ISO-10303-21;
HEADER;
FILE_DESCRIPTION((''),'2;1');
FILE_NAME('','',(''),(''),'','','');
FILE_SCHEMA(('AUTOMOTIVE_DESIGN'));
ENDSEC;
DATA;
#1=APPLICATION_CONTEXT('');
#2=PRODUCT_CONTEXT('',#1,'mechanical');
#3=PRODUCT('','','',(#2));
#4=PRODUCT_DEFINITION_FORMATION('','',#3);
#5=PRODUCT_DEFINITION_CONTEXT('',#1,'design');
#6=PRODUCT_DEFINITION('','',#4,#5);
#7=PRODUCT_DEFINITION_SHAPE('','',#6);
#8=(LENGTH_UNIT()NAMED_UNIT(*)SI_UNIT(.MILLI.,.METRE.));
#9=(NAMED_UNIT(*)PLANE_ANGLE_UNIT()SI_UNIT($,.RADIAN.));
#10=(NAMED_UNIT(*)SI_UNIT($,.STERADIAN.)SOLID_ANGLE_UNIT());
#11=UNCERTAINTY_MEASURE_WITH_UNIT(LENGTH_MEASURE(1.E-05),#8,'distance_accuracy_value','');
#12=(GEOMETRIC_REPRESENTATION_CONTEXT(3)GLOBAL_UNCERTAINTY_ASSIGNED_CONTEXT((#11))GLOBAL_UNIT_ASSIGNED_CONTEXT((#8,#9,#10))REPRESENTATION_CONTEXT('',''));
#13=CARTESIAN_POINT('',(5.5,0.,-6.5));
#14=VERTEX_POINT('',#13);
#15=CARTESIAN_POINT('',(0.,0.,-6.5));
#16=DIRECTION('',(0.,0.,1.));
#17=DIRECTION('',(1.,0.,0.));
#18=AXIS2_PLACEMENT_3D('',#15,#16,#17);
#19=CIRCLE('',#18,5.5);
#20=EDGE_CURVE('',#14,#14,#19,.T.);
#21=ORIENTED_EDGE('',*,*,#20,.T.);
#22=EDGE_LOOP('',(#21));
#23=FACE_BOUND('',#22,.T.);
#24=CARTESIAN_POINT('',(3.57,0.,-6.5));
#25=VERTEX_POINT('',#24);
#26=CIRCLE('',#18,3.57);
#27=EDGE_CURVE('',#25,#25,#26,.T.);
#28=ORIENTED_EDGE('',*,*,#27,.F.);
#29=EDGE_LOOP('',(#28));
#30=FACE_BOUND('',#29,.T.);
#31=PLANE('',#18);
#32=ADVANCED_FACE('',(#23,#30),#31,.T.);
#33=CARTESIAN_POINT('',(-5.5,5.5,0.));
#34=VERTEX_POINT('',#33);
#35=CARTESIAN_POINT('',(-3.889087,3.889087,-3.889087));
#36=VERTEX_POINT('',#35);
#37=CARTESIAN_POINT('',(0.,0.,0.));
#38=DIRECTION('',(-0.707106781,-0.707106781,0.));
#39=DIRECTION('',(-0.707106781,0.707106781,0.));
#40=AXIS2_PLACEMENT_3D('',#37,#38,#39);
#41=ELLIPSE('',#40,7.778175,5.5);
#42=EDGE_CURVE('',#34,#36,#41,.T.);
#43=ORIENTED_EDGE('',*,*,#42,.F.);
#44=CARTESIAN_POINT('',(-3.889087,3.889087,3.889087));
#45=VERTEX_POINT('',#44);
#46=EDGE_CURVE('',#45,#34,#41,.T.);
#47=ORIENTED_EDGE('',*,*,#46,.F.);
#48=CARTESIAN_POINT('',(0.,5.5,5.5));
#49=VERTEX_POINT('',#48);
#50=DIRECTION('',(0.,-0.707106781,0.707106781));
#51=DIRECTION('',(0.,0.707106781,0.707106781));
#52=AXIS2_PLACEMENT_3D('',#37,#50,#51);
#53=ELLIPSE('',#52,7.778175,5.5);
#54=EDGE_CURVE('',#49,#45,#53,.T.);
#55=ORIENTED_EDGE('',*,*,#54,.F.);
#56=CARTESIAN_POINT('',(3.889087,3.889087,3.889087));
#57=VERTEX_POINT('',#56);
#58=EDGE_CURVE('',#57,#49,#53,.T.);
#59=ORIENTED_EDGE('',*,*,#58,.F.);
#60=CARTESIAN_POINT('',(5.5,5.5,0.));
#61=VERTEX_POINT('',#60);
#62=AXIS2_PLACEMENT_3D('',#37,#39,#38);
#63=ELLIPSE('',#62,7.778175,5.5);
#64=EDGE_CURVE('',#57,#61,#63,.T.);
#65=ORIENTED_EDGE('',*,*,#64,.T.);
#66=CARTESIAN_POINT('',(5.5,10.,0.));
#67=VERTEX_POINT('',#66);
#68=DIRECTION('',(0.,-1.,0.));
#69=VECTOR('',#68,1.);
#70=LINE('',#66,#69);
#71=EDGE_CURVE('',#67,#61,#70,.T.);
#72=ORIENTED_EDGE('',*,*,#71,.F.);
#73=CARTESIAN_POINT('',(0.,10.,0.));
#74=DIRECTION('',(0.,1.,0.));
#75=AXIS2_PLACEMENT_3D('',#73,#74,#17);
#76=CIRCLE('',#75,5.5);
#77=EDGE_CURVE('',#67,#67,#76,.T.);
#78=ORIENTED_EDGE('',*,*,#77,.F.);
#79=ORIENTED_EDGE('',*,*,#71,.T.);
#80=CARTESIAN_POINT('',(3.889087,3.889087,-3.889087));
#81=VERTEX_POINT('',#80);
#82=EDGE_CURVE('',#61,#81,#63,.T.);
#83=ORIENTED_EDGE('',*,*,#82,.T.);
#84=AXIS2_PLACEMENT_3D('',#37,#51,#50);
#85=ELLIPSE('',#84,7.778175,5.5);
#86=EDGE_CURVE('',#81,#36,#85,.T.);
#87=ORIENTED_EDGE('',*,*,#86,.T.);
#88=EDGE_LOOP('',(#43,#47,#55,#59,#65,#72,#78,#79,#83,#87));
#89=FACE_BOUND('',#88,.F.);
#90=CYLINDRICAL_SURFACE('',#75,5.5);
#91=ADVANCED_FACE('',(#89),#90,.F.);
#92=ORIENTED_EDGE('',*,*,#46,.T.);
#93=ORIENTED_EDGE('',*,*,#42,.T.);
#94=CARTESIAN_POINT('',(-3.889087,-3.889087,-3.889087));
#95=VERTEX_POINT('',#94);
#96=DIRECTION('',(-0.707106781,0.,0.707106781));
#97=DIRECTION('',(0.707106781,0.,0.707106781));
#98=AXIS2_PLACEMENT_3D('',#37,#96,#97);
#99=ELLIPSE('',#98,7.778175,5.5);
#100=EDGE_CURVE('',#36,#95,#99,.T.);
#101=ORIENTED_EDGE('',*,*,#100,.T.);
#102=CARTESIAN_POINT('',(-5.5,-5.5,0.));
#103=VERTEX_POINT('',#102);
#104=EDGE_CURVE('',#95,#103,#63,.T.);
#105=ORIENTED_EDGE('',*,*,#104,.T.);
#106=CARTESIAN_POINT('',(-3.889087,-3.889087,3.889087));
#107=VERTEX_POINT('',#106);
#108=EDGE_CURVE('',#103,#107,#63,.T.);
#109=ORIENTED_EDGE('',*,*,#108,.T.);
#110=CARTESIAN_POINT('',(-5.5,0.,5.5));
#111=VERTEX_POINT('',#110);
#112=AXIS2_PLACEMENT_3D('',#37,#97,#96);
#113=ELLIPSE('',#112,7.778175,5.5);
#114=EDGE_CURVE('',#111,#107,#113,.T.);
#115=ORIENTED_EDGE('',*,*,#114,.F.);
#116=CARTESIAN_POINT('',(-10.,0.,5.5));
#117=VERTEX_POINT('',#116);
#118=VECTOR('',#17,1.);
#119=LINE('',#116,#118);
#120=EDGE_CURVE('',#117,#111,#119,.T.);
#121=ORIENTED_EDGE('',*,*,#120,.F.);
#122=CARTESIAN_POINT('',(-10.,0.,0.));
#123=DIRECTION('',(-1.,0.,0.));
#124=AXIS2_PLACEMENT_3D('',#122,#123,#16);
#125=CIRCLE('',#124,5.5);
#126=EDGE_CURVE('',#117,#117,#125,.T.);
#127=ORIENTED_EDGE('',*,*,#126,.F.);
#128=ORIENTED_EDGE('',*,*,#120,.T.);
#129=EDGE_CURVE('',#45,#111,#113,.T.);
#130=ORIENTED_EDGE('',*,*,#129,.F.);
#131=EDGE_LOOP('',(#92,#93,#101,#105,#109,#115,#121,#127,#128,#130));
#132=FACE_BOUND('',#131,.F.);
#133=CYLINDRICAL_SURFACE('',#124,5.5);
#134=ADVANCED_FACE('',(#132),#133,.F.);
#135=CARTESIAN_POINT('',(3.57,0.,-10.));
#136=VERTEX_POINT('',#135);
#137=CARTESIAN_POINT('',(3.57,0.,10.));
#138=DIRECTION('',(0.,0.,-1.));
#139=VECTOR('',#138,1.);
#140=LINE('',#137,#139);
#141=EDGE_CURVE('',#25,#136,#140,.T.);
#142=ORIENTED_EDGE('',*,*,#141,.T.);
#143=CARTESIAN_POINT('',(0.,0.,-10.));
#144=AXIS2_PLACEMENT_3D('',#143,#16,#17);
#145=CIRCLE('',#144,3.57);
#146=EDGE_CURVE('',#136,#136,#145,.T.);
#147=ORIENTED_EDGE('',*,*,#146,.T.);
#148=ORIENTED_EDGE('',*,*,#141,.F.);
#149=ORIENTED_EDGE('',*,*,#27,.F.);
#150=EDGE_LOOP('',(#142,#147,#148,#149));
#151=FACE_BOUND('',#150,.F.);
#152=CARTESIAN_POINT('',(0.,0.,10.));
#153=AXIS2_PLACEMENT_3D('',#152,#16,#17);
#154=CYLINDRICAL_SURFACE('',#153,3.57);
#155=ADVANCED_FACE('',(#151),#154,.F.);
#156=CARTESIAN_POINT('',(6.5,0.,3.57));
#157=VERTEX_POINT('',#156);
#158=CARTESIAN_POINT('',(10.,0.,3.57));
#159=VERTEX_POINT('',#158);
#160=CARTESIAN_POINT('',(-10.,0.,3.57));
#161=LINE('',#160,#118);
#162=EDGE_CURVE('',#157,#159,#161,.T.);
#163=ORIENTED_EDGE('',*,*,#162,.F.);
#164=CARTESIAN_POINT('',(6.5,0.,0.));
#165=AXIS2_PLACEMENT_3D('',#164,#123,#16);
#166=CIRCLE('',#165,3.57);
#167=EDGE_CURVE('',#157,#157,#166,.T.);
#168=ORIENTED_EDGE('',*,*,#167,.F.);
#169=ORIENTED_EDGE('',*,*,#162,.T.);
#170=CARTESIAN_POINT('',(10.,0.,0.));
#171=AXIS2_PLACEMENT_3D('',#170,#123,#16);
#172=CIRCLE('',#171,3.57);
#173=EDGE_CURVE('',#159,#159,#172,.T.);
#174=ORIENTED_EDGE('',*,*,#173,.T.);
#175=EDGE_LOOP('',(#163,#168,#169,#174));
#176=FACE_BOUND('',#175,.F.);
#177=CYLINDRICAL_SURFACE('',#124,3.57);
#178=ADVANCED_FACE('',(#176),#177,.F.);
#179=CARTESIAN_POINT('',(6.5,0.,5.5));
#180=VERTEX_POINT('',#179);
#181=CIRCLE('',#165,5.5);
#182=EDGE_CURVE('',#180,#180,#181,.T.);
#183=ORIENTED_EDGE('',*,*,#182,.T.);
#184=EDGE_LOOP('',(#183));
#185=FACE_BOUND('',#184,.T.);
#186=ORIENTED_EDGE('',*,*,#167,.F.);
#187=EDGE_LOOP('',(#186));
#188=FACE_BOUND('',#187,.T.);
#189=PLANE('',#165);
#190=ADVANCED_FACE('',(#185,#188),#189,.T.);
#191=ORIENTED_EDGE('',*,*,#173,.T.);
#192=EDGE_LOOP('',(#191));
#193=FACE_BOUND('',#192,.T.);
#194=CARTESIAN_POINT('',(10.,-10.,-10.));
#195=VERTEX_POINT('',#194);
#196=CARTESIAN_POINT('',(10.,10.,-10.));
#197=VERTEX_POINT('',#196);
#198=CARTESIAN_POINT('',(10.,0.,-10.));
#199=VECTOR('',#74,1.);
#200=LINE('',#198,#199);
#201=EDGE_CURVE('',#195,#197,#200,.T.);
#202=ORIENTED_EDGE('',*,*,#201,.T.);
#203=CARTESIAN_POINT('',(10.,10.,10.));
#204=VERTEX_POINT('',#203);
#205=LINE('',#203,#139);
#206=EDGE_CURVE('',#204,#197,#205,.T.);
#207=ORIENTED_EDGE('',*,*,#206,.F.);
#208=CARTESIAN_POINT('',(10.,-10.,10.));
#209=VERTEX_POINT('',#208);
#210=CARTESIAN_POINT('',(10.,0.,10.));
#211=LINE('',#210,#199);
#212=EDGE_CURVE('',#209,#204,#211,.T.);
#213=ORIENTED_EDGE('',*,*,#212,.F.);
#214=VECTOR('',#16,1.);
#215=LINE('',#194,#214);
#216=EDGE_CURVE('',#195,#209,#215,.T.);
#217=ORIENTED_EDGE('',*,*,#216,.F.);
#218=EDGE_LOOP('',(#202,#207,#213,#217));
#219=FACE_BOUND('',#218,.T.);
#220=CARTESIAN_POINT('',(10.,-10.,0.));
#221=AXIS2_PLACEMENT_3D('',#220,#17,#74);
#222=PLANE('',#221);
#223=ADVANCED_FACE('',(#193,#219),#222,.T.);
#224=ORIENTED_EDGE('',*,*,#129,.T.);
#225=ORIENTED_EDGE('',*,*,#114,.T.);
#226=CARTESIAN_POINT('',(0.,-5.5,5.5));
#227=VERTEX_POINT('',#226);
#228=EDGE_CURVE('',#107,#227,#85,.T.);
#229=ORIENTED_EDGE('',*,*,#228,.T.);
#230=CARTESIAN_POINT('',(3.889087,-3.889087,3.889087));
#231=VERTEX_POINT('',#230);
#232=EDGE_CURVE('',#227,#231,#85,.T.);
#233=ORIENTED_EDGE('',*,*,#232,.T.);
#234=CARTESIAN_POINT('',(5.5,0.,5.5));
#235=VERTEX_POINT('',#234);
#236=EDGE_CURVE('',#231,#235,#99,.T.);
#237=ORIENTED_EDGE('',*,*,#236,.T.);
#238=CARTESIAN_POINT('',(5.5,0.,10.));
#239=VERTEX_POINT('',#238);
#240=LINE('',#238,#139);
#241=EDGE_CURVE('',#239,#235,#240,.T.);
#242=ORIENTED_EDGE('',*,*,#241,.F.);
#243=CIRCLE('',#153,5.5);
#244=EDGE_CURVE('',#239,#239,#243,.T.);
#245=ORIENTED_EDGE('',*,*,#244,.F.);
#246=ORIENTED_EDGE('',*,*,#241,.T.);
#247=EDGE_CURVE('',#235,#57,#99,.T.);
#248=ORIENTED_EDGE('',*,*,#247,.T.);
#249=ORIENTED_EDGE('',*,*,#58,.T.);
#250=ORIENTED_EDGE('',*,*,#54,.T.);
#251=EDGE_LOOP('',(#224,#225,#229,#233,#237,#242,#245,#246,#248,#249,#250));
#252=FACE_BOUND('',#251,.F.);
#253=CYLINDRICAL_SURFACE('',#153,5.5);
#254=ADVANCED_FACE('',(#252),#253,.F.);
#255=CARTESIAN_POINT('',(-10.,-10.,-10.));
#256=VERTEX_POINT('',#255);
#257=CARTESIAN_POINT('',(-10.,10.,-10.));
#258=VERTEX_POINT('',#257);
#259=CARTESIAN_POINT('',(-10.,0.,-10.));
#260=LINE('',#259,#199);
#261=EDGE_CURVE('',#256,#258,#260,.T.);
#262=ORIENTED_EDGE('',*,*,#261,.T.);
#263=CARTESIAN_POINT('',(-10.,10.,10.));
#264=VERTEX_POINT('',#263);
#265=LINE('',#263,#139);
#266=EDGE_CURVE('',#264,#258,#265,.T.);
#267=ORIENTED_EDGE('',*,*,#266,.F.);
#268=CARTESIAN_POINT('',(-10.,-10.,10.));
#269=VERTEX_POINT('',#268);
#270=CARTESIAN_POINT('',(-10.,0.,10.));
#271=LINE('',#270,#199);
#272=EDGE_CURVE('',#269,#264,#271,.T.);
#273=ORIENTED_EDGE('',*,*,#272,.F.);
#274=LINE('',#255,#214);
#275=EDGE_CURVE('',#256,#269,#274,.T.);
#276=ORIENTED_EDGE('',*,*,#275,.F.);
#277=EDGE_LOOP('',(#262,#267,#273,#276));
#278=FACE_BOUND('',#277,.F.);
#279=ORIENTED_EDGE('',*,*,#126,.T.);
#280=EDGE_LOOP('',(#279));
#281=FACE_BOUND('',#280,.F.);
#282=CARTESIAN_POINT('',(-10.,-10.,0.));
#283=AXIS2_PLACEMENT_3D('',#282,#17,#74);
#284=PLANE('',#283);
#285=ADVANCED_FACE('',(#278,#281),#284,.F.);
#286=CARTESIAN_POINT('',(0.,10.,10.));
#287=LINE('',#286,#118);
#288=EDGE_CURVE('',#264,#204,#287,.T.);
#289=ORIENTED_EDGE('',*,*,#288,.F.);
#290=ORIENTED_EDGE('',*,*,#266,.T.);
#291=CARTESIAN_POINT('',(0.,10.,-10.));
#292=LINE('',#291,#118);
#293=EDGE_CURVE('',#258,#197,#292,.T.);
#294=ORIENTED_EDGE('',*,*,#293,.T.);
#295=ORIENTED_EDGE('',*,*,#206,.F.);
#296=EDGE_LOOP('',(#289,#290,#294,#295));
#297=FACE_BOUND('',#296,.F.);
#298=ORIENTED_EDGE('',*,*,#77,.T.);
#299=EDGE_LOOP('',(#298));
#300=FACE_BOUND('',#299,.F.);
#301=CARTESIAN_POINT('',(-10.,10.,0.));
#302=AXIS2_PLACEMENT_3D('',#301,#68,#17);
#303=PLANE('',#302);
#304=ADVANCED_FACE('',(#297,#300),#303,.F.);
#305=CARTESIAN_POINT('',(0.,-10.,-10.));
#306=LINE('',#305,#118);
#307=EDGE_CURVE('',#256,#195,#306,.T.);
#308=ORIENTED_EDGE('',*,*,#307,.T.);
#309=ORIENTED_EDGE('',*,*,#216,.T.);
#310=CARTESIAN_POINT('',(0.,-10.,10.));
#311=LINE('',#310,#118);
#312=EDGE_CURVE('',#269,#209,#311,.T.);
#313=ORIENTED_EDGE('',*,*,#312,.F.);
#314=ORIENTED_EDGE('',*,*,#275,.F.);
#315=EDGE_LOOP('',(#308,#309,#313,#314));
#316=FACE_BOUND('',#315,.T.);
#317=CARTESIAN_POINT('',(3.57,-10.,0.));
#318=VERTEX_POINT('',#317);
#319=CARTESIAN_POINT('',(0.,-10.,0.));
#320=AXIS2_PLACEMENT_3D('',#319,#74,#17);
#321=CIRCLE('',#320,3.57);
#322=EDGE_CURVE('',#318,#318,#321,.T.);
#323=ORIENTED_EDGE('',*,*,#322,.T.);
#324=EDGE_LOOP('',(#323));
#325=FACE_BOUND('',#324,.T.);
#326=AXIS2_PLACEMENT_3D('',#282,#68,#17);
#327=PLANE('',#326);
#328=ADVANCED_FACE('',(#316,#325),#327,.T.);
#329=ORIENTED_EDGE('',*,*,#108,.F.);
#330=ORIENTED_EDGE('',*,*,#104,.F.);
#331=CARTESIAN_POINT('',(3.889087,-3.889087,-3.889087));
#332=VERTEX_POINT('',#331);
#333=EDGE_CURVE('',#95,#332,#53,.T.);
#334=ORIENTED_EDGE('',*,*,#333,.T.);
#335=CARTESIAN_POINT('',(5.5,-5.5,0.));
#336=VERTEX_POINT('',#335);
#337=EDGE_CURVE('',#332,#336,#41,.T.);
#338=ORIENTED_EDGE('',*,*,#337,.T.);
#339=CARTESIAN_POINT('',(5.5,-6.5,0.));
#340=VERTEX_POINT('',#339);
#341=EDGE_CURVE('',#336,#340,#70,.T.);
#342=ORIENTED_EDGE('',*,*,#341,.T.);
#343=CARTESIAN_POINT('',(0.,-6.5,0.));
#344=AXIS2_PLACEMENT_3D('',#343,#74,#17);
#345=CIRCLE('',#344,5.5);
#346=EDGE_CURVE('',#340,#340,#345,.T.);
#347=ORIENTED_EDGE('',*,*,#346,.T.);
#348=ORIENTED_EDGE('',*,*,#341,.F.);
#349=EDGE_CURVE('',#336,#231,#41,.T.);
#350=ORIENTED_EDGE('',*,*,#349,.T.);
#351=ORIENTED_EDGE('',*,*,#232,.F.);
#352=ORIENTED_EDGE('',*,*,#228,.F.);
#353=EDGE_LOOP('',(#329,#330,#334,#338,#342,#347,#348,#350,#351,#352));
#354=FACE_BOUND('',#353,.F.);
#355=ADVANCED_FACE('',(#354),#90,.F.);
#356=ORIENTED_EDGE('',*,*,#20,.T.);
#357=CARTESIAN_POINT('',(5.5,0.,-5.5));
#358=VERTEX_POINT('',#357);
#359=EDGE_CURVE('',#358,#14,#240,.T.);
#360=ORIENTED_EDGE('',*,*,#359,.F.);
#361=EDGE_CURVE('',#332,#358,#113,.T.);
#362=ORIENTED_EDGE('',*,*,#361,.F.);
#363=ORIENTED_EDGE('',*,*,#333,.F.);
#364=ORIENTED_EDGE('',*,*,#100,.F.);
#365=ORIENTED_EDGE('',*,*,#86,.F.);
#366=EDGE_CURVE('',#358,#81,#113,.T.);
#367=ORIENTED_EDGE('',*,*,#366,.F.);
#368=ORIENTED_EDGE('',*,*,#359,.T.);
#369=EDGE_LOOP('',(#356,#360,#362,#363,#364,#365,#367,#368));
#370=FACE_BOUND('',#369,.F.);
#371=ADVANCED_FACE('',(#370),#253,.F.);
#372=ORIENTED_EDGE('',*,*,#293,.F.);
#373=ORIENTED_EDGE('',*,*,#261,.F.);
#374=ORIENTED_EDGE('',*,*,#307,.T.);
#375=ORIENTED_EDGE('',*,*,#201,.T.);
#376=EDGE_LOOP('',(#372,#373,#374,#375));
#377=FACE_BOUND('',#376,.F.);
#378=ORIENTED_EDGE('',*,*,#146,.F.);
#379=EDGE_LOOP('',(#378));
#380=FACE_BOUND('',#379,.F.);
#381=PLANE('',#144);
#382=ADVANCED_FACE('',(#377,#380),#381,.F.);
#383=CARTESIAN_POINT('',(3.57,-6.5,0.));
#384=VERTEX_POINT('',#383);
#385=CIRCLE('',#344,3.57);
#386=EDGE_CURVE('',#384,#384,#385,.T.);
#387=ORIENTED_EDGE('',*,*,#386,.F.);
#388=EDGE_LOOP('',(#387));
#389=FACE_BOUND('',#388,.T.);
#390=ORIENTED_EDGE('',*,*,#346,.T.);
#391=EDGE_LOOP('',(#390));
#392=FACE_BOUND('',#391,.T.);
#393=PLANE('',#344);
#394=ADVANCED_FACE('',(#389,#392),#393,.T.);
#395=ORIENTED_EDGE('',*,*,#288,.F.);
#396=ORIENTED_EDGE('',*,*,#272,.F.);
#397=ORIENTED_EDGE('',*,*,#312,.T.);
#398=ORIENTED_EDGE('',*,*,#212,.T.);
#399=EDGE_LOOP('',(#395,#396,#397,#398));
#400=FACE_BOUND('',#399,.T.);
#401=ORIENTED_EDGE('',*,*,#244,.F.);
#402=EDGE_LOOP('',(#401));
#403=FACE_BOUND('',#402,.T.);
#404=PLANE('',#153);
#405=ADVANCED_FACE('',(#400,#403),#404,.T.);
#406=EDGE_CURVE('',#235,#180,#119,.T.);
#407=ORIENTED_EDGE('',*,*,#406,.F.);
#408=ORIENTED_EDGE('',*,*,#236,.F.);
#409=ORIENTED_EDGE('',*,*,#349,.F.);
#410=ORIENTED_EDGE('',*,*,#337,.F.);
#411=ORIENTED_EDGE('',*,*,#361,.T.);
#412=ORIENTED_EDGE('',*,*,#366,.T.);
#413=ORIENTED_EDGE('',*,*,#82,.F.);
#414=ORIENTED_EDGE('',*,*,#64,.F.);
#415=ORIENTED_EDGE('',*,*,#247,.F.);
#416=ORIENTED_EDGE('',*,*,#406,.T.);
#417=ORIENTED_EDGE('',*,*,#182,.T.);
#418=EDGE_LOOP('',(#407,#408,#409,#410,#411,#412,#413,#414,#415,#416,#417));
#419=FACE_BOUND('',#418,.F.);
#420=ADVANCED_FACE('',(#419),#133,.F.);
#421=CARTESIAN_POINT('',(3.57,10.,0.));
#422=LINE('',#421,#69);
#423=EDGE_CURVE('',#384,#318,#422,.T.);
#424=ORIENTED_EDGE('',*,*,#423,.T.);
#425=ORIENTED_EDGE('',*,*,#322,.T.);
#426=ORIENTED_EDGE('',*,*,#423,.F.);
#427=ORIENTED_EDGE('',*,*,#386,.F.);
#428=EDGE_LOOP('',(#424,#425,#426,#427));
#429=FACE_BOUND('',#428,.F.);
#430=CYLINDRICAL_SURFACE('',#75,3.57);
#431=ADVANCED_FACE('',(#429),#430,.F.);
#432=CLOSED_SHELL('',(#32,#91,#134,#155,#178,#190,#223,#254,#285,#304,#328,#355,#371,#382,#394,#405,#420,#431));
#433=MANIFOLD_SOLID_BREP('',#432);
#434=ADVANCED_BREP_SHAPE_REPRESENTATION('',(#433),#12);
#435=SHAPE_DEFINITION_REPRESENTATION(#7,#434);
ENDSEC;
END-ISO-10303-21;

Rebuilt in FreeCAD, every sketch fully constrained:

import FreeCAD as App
import Part
import Sketcher
from FreeCAD import Vector


def add_polygon(sketch, points):
    """Adds a closed chain of lines whose ends are joined by coincident constraints."""
    first, n = sketch.GeometryCount, len(points)
    for a, b in zip(points, points[1:] + points[:1]):
        sketch.addGeometry(Part.LineSegment(App.Vector(*a, 0), App.Vector(*b, 0)), False)
    for i in range(n):
        sketch.addConstraint(Sketcher.Constraint("Coincident", first + i, 2, first + (i + 1) % n, 1))

doc = App.newDocument("Part")
params = doc.addObject("Spreadsheet::Sheet", "Params")
for row, (alias, value) in enumerate([
    ("sketch1_width", "20 mm"),
    ("pad1_length", "20 mm"),
    ("sketch2_diameter", "7.14 mm"),
    ("sketch3_diameter", "11 mm"),
    ("pocket2_length", "16.5 mm"),
    ("sketch4_diameter", "7.14 mm"),
    ("sketch5_diameter", "11 mm"),
    ("pocket4_length", "16.5 mm"),
    ("sketch6_diameter", "7.14 mm"),
    ("sketch7_diameter", "11 mm"),
    ("pocket6_length", "16.5 mm"),
], start=1):
    params.set(f"A{row}", alias)
    params.set(f"B{row}", "=" + value)
    params.setAlias(f"B{row}", alias)

body = doc.addObject("PartDesign::Body", "Body")

# Sketch on XY plane
sketch1 = body.newObject("Sketcher::SketchObject", "Sketch")
sketch1.AttachmentSupport = (doc.getObject("XY_Plane"), [""])
sketch1.MapMode = "FlatFace"
add_polygon(sketch1, [(-10, 10), (-10, -10), (10, -10), (10, 10)])  # lines 0-3
sketch1.addConstraint(Sketcher.Constraint("Vertical", 0))
sketch1.addConstraint(Sketcher.Constraint("Horizontal", 1))
sketch1.addConstraint(Sketcher.Constraint("Vertical", 2))
sketch1.addConstraint(Sketcher.Constraint("Horizontal", 3))
sketch1.addConstraint(Sketcher.Constraint("Symmetric", 0, 2, 2, 2, -1, 1))
sketch1.addConstraint(Sketcher.Constraint("Equal", 3, 0))
sketch1.addConstraint(Sketcher.Constraint("DistanceX", 1, 1, 1, 2, 20.0))
sketch1.setExpression("Constraints[10]", "Params.sketch1_width")
pad1 = body.newObject("PartDesign::Pad", "Pad")
pad1.Profile = sketch1
pad1.setExpression("Length", "Params.pad1_length")
pad1.Midplane = True

# Sketch on XY plane
sketch2 = body.newObject("Sketcher::SketchObject", "Sketch001")
sketch2.AttachmentSupport = (doc.getObject("XY_Plane"), [""])
sketch2.MapMode = "FlatFace"
sketch2.AttachmentOffset = App.Placement(Vector(0, 0, 10), App.Rotation())
sketch2.addGeometry(Part.Circle(Vector(0, 0, 0), Vector(0, 0, 1), 3.57), False)
sketch2.addConstraint(Sketcher.Constraint("Coincident", 0, 3, -1, 1))
sketch2.addConstraint(Sketcher.Constraint("Diameter", 0, 7.14))
sketch2.setExpression("Constraints[1]", "Params.sketch2_diameter")
pocket1 = body.newObject("PartDesign::Pocket", "Pocket")
pocket1.Profile = sketch2
pocket1.Type = "ThroughAll"

# Sketch on XY plane
sketch3 = body.newObject("Sketcher::SketchObject", "Sketch002")
sketch3.AttachmentSupport = (doc.getObject("XY_Plane"), [""])
sketch3.MapMode = "FlatFace"
sketch3.AttachmentOffset = App.Placement(Vector(0, 0, 10), App.Rotation())
sketch3.addGeometry(Part.Circle(Vector(0, 0, 0), Vector(0, 0, 1), 5.5), False)
sketch3.addConstraint(Sketcher.Constraint("Coincident", 0, 3, -1, 1))
sketch3.addConstraint(Sketcher.Constraint("Diameter", 0, 11.0))
sketch3.setExpression("Constraints[1]", "Params.sketch3_diameter")
pocket2 = body.newObject("PartDesign::Pocket", "Pocket001")
pocket2.Profile = sketch3
pocket2.setExpression("Length", "Params.pocket2_length")

# Sketch on YZ plane
sketch4 = body.newObject("Sketcher::SketchObject", "Sketch003")
sketch4.AttachmentSupport = (doc.getObject("YZ_Plane"), [""])
sketch4.MapMode = "FlatFace"
sketch4.AttachmentOffset = App.Placement(Vector(0, 0, -10), App.Rotation())
sketch4.addGeometry(Part.Circle(Vector(0, 0, 0), Vector(0, 0, 1), 3.57), False)
sketch4.addConstraint(Sketcher.Constraint("Coincident", 0, 3, -1, 1))
sketch4.addConstraint(Sketcher.Constraint("Diameter", 0, 7.14))
sketch4.setExpression("Constraints[1]", "Params.sketch4_diameter")
pocket3 = body.newObject("PartDesign::Pocket", "Pocket002")
pocket3.Profile = sketch4
pocket3.Type = "ThroughAll"
pocket3.Reversed = True

# Sketch on YZ plane
sketch5 = body.newObject("Sketcher::SketchObject", "Sketch004")
sketch5.AttachmentSupport = (doc.getObject("YZ_Plane"), [""])
sketch5.MapMode = "FlatFace"
sketch5.AttachmentOffset = App.Placement(Vector(0, 0, -10), App.Rotation())
sketch5.addGeometry(Part.Circle(Vector(0, 0, 0), Vector(0, 0, 1), 5.5), False)
sketch5.addConstraint(Sketcher.Constraint("Coincident", 0, 3, -1, 1))
sketch5.addConstraint(Sketcher.Constraint("Diameter", 0, 11.0))
sketch5.setExpression("Constraints[1]", "Params.sketch5_diameter")
pocket4 = body.newObject("PartDesign::Pocket", "Pocket003")
pocket4.Profile = sketch5
pocket4.setExpression("Length", "Params.pocket4_length")
pocket4.Reversed = True

# Sketch on XZ plane
sketch6 = body.newObject("Sketcher::SketchObject", "Sketch005")
sketch6.AttachmentSupport = (doc.getObject("XZ_Plane"), [""])
sketch6.MapMode = "FlatFace"
sketch6.AttachmentOffset = App.Placement(Vector(0, 0, -10), App.Rotation())
sketch6.addGeometry(Part.Circle(Vector(0, 0, 0), Vector(0, 0, 1), 3.57), False)
sketch6.addConstraint(Sketcher.Constraint("Coincident", 0, 3, -1, 1))
sketch6.addConstraint(Sketcher.Constraint("Diameter", 0, 7.14))
sketch6.setExpression("Constraints[1]", "Params.sketch6_diameter")
pocket5 = body.newObject("PartDesign::Pocket", "Pocket004")
pocket5.Profile = sketch6
pocket5.Type = "ThroughAll"
pocket5.Reversed = True

# Sketch on XZ plane
sketch7 = body.newObject("Sketcher::SketchObject", "Sketch006")
sketch7.AttachmentSupport = (doc.getObject("XZ_Plane"), [""])
sketch7.MapMode = "FlatFace"
sketch7.AttachmentOffset = App.Placement(Vector(0, 0, -10), App.Rotation())
sketch7.addGeometry(Part.Circle(Vector(0, 0, 0), Vector(0, 0, 1), 5.5), False)
sketch7.addConstraint(Sketcher.Constraint("Coincident", 0, 3, -1, 1))
sketch7.addConstraint(Sketcher.Constraint("Diameter", 0, 11.0))
sketch7.setExpression("Constraints[1]", "Params.sketch7_diameter")
pocket6 = body.newObject("PartDesign::Pocket", "Pocket005")
pocket6.Profile = sketch7
pocket6.setExpression("Length", "Params.pocket6_length")
pocket6.Reversed = True

doc.recompute()
